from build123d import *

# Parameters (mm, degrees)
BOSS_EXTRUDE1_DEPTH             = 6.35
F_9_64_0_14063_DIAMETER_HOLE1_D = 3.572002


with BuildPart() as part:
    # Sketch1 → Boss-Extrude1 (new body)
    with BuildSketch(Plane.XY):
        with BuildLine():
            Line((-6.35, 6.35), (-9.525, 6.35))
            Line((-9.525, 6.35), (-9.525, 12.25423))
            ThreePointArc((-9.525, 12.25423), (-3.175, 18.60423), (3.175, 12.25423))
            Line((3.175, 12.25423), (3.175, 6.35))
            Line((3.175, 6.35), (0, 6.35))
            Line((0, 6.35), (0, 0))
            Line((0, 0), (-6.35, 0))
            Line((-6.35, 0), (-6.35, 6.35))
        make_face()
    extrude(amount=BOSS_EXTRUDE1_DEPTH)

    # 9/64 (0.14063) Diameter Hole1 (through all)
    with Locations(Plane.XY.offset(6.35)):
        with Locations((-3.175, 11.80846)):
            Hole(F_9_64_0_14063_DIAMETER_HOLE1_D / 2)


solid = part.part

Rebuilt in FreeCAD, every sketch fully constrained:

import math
import FreeCAD as App
import Part
import Sketcher

V = App.Vector
Q = App.Units.Quantity

doc = App.newDocument("Part")
body = doc.addObject("PartDesign::Body", "Body")

# Sketch on XY plane
sketch1 = body.newObject("Sketcher::SketchObject", "Sketch")
sketch1.AttachmentSupport = (doc.getObject("XY_Plane"), [""])
sketch1.MapMode = "FlatFace"
sketch1.addGeometry(Part.LineSegment(V(-9.525, 6.35, 0), V(-6.35, 6.35, 0)), False)
sketch1.addGeometry(Part.LineSegment(V(-6.35, 6.35, 0), V(-6.35, 0, 0)), False)
sketch1.addGeometry(Part.LineSegment(V(-6.35, 0, 0), V(0, 0, 0)), False)
sketch1.addGeometry(Part.LineSegment(V(0, 0, 0), V(0, 6.35, 0)), False)
sketch1.addGeometry(Part.LineSegment(V(0, 6.35, 0), V(3.175, 6.35, 0)), False)
sketch1.addGeometry(Part.LineSegment(V(3.175, 6.35, 0), V(3.175, 12.25423, 0)), False)
sketch1.addGeometry(Part.ArcOfCircle(Part.Circle(V(-3.175, 12.25423, 0), V(0, 0, 1), 6.35), math.radians(0), math.radians(180)), False)
sketch1.addGeometry(Part.LineSegment(V(-9.525, 12.25423, 0), V(-9.525, 6.35, 0)), False)
sketch1.addConstraint(Sketcher.Constraint("Coincident", 0, 2, 1, 1))
sketch1.addConstraint(Sketcher.Constraint("Coincident", 1, 2, 2, 1))
sketch1.addConstraint(Sketcher.Constraint("Coincident", 2, 2, 3, 1))
sketch1.addConstraint(Sketcher.Constraint("Coincident", 3, 2, 4, 1))
sketch1.addConstraint(Sketcher.Constraint("Coincident", 4, 2, 5, 1))
sketch1.addConstraint(Sketcher.Constraint("Tangent", 5, 2, 6, 1))
sketch1.addConstraint(Sketcher.Constraint("Tangent", 6, 2, 7, 1))
sketch1.addConstraint(Sketcher.Constraint("Coincident", 7, 2, 0, 1))
sketch1.addConstraint(Sketcher.Constraint("Horizontal", 0))
sketch1.addConstraint(Sketcher.Constraint("Vertical", 1))
sketch1.addConstraint(Sketcher.Constraint("Horizontal", 2))
sketch1.addConstraint(Sketcher.Constraint("Vertical", 3))
sketch1.addConstraint(Sketcher.Constraint("Horizontal", 4))
sketch1.addConstraint(Sketcher.Constraint("Vertical", 5))
sketch1.addConstraint(Sketcher.Constraint("Vertical", 7))
sketch1.addConstraint(Sketcher.Constraint("Coincident", 2, 2, -1, 1))
sketch1.addConstraint(Sketcher.Constraint("Horizontal", 0, 2, 3, 2))
sketch1.addConstraint(Sketcher.Constraint("Equal", 0, 4))
sketch1.addConstraint(Sketcher.Constraint("Equal", 2, 1))
sketch1.addConstraint(Sketcher.Constraint("Radius", 6, Q("0.25 in")))
sketch1.addConstraint(Sketcher.Constraint("DistanceX", 2, 1, 2, 2, Q("0.25 in")))
sketch1.addConstraint(Sketcher.Constraint("DistanceY", 5, 1, 5, 2, 5.90423))
pad1 = body.newObject("PartDesign::Pad", "Pad")
pad1.Profile = sketch1
pad1.Length = Q("0.25 in")

# Sketch on XY plane
sketch2 = body.newObject("Sketcher::SketchObject", "Sketch001")
sketch2.AttachmentSupport = (doc.getObject("XY_Plane"), [""])
sketch2.MapMode = "FlatFace"
sketch2.AttachmentOffset = App.Placement(V(0, 0, 0.25 * 25.4), App.Rotation())
sketch2.addGeometry(Part.Circle(V(-3.175, 11.80846, 0), V(0, 0, 1), 1.786001), False)
sketch2.addConstraint(Sketcher.Constraint("Diameter", 0, 3.572002))
sketch2.addConstraint(Sketcher.Constraint("DistanceX", 0, 3, -1, 1, Q("0.125 in")))
sketch2.addConstraint(Sketcher.Constraint("DistanceY", -1, 1, 0, 3, Q("0.4649 in")))
doc.recompute()
hole = body.newObject("PartDesign::Hole", "Hole")
hole.Profile = sketch2
hole.ThreadType = "None"
hole.Diameter = 3.572002
hole.DepthType = "ThroughAll"

doc.recompute()
